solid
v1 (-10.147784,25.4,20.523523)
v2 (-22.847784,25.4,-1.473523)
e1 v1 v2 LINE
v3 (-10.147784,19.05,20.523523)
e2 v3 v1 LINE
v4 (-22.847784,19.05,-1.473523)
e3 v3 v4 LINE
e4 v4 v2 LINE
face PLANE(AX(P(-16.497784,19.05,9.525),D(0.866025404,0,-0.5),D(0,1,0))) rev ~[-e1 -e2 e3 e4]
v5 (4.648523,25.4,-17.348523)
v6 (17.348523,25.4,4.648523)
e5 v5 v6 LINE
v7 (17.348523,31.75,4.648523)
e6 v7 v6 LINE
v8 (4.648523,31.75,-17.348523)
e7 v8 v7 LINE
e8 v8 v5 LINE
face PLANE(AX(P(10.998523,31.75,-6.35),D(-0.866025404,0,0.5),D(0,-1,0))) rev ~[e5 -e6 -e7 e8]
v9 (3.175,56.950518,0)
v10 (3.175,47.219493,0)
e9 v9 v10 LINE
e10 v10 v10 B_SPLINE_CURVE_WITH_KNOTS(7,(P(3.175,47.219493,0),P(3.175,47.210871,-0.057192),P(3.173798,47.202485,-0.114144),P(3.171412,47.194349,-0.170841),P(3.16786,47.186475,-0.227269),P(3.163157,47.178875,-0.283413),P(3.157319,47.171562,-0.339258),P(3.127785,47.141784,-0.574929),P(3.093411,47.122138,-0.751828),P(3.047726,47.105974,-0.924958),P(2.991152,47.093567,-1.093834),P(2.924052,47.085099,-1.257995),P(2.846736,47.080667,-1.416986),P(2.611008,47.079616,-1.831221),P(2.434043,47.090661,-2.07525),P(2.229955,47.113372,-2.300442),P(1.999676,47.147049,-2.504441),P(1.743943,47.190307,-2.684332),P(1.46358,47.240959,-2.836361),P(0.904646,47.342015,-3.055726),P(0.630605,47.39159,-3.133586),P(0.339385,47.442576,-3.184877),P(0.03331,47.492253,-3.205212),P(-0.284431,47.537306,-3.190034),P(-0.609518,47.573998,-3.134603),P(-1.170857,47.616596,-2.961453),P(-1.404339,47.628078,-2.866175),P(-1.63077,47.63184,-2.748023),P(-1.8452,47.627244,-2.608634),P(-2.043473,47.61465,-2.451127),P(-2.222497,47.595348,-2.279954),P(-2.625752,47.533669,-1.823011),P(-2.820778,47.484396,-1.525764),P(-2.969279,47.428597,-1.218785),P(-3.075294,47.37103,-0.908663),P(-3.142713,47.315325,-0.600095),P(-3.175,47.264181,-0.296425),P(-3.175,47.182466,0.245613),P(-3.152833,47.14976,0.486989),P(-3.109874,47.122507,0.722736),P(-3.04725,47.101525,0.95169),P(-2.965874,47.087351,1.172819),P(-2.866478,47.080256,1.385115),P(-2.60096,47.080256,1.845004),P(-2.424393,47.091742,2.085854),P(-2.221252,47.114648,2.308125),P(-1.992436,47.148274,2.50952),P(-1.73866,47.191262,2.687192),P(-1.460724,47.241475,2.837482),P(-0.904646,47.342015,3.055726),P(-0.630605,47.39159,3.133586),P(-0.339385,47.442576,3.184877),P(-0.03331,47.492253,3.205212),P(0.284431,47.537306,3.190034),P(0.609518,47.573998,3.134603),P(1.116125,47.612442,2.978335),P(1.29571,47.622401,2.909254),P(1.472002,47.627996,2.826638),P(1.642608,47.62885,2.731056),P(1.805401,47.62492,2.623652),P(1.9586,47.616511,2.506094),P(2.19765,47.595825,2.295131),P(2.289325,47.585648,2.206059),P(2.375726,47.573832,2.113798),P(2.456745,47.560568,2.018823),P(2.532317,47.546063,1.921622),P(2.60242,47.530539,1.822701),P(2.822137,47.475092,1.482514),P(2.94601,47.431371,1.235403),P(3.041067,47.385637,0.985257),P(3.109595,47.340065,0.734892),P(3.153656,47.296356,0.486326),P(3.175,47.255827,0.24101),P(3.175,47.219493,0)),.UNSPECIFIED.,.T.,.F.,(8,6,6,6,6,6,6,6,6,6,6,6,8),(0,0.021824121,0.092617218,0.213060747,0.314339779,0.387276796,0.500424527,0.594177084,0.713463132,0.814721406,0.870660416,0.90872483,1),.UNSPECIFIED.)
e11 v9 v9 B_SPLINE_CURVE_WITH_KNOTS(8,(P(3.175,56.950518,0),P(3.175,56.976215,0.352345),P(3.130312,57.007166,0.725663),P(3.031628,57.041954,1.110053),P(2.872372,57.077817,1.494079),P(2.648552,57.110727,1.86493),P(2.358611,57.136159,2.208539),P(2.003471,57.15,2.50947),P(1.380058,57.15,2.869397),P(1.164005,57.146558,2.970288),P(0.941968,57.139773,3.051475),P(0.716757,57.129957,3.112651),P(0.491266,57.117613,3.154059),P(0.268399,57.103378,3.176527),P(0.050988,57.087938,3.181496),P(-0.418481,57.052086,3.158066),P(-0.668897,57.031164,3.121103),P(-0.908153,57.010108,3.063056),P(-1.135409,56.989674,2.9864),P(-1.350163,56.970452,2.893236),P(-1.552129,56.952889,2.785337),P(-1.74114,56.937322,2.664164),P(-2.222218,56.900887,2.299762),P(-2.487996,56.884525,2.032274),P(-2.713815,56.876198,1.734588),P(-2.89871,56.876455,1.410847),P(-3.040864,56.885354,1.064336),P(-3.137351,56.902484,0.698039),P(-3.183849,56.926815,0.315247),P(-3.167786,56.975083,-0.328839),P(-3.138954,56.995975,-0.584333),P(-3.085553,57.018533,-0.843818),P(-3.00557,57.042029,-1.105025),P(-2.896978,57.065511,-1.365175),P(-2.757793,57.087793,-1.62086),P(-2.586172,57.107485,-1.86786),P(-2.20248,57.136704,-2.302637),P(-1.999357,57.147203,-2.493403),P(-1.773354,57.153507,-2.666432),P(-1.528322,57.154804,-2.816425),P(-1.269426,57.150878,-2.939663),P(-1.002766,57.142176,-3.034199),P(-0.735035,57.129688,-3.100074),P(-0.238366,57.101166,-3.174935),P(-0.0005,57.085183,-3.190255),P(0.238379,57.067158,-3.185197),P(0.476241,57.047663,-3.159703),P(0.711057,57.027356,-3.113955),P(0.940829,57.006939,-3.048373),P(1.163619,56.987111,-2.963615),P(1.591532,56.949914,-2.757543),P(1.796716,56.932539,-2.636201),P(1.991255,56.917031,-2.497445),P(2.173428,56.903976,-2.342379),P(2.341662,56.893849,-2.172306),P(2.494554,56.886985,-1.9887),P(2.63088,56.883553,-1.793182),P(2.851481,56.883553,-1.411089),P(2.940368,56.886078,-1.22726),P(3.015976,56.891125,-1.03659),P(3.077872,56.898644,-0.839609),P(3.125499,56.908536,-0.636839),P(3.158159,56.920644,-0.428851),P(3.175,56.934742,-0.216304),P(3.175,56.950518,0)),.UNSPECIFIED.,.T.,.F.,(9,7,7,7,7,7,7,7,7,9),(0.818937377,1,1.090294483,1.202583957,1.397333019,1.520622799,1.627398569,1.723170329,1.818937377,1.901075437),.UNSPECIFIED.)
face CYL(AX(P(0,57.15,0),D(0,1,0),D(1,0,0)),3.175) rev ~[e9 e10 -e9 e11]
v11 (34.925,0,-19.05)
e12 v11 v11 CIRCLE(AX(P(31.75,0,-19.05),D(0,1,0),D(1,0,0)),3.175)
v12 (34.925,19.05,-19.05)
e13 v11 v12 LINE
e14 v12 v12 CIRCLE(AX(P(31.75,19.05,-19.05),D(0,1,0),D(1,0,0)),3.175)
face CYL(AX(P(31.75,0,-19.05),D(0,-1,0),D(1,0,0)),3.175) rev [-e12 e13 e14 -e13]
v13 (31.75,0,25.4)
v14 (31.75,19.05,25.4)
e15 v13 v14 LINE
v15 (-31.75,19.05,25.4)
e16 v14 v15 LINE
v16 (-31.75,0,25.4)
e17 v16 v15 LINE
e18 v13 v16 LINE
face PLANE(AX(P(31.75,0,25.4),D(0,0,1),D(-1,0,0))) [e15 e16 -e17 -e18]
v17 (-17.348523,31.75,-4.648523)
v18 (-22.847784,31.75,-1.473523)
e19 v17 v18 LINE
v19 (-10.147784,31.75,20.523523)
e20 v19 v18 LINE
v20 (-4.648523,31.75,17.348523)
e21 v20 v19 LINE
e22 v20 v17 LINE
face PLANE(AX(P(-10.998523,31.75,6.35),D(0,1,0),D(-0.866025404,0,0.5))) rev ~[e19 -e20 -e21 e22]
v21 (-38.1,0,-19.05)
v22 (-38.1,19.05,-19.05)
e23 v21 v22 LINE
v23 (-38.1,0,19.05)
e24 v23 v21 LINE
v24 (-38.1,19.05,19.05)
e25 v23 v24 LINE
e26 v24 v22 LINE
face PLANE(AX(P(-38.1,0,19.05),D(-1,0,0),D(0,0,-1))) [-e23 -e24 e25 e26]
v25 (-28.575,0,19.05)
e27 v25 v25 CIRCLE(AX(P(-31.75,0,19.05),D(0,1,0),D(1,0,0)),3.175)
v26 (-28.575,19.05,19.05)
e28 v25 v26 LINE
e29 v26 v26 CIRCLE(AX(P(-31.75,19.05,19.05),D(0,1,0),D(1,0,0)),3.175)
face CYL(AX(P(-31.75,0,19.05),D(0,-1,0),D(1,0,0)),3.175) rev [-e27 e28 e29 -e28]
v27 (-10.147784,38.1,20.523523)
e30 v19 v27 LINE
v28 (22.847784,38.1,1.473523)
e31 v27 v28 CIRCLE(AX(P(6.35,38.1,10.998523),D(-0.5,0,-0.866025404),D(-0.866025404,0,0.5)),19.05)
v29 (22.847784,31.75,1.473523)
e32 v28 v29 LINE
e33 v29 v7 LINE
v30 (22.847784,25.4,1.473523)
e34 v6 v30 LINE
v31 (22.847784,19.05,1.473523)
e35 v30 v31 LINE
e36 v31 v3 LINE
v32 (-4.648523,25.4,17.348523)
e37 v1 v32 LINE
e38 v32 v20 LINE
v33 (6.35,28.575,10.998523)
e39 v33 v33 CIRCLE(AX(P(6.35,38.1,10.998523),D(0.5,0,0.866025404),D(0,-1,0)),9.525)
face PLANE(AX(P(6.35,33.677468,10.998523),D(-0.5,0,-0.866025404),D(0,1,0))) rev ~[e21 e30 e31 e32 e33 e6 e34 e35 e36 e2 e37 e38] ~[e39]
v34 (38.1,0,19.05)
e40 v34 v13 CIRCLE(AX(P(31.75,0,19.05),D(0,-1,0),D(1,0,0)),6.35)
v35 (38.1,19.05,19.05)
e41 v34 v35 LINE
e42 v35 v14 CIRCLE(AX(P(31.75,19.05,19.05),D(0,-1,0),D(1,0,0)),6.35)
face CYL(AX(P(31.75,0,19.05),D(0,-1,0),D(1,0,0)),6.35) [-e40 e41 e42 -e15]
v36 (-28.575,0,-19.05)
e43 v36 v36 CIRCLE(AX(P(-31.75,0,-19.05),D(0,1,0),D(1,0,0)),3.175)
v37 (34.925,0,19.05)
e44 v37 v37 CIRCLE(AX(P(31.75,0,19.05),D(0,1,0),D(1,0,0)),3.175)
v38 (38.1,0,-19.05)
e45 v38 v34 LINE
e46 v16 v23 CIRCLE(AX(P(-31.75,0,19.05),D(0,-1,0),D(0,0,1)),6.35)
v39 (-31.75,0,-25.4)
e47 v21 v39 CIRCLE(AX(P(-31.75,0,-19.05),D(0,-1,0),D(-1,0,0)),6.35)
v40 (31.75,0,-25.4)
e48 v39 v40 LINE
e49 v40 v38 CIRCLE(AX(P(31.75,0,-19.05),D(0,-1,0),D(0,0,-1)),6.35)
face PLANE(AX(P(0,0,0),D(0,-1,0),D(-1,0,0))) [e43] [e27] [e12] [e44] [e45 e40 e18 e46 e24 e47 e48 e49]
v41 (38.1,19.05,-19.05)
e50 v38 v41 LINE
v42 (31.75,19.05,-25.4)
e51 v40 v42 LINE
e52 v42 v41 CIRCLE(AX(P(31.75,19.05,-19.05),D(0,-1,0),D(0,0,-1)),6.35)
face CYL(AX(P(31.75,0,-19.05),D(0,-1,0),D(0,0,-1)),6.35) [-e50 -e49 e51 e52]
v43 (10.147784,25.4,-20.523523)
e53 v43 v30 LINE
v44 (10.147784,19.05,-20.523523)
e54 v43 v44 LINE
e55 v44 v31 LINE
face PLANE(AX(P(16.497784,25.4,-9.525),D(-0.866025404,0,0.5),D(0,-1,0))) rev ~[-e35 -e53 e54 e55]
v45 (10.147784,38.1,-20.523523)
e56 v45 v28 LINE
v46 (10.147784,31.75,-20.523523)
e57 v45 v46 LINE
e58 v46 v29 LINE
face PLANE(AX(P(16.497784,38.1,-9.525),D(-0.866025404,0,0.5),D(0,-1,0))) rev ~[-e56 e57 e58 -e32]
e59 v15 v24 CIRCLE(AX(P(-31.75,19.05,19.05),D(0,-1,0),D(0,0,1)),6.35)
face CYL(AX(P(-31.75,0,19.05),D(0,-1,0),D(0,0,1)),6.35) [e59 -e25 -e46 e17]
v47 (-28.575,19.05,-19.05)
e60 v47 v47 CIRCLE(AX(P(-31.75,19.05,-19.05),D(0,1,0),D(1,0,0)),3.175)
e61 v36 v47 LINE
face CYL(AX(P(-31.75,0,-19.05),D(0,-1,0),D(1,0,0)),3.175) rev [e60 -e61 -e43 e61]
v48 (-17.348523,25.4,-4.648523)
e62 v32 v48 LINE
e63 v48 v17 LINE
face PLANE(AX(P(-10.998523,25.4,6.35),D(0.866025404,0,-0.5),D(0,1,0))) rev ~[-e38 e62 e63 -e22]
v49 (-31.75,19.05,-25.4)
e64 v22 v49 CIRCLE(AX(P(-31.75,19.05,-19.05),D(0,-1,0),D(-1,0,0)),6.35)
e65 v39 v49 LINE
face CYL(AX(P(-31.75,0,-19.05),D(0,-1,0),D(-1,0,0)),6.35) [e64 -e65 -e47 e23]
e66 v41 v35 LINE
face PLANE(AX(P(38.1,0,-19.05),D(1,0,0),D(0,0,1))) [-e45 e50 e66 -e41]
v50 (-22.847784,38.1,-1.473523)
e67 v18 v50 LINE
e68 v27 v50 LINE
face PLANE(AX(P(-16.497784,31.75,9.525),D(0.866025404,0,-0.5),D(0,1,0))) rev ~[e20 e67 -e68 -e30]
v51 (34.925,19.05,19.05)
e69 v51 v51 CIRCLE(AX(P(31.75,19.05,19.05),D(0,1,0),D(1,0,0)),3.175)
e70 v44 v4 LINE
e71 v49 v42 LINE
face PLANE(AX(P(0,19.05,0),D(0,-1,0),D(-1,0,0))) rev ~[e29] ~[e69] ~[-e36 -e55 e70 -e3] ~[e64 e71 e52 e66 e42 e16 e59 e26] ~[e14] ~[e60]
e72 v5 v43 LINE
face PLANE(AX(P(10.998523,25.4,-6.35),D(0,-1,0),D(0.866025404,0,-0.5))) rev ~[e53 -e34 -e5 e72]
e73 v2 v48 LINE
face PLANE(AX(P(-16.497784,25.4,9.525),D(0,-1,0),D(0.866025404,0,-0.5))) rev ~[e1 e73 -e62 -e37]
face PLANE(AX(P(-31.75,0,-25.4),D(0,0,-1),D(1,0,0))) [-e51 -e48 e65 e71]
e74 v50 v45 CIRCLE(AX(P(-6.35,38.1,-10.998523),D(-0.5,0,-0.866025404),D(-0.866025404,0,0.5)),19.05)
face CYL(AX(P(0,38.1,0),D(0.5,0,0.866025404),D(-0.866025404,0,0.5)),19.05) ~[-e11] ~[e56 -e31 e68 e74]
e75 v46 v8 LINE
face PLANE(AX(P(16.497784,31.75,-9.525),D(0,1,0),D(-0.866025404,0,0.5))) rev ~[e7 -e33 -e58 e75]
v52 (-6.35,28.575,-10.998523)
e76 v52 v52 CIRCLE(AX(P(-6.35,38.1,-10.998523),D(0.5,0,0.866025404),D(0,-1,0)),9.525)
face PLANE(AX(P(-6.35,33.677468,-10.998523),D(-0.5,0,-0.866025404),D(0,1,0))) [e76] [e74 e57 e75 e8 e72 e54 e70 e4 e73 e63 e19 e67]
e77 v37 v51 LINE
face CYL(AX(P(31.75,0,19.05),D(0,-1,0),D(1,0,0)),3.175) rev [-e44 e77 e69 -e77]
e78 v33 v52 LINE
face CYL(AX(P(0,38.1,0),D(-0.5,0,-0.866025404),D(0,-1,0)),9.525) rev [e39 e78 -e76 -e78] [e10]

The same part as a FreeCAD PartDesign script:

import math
import FreeCAD as App
import Part
import Sketcher

V = App.Vector
Q = App.Units.Quantity

doc = App.newDocument("Part")
body = doc.addObject("PartDesign::Body", "Body")

sketch1 = body.newObject("Sketcher::SketchObject", "Sketch")
sketch1.AttachmentSupport = (doc.getObject("XZ_Plane"), [""])
sketch1.MapMode = "FlatFace"
sketch1.addGeometry([
    Part.LineSegment(V(31.75, -25.4, 0), V(-31.75, -25.4, 0)),
    Part.ArcOfCircle(Part.Circle(V(-31.75, -19.05, 0), V(0, 0, 1), 6.35), math.radians(180), math.radians(270)),
    Part.LineSegment(V(-38.1, -19.05, 0), V(-38.1, 19.05, 0)),
    Part.ArcOfCircle(Part.Circle(V(-31.75, 19.05, 0), V(0, 0, 1), 6.35), math.radians(90), math.radians(180)),
    Part.LineSegment(V(-31.75, 25.4, 0), V(31.75, 25.4, 0)),
    Part.ArcOfCircle(Part.Circle(V(31.75, 19.05, 0), V(0, 0, 1), 6.35), math.radians(0), math.radians(90)),
    Part.LineSegment(V(38.1, 19.05, 0), V(38.1, -19.05, 0)),
    Part.ArcOfCircle(Part.Circle(V(31.75, -19.05, 0), V(0, 0, 1), 6.35), math.radians(-90), math.radians(0)),
    Part.Circle(V(31.75, 19.05, 0), V(0, 0, 1), 3.175),
    Part.Circle(V(-31.75, 19.05, 0), V(0, 0, 1), 3.175),
    Part.Circle(V(31.75, -19.05, 0), V(0, 0, 1), 3.175),
    Part.Circle(V(-31.75, -19.05, 0), V(0, 0, 1), 3.175),
], False)
sketch1.addConstraint([
    Sketcher.Constraint("Tangent", 0, 2, 1, 2),
    Sketcher.Constraint("Tangent", 1, 1, 2, 1),
    Sketcher.Constraint("Tangent", 2, 2, 3, 2),
    Sketcher.Constraint("Tangent", 3, 1, 4, 1),
    Sketcher.Constraint("Tangent", 4, 2, 5, 2),
    Sketcher.Constraint("Tangent", 5, 1, 6, 1),
    Sketcher.Constraint("Tangent", 6, 2, 7, 2),
    Sketcher.Constraint("Tangent", 7, 1, 0, 1),
    Sketcher.Constraint("Horizontal", 0),
    Sketcher.Constraint("Vertical", 2),
    Sketcher.Constraint("Horizontal", 4),
    Sketcher.Constraint("Vertical", 6),
    Sketcher.Constraint("Coincident", 8, 3, 5, 3),
    Sketcher.Constraint("Coincident", 9, 3, 3, 3),
    Sketcher.Constraint("Coincident", 10, 3, 7, 3),
    Sketcher.Constraint("Coincident", 11, 3, 1, 3),
    Sketcher.Constraint("Equal", 1, 3),
    Sketcher.Constraint("Equal", 3, 5),
    Sketcher.Constraint("Equal", 5, 7),
    Sketcher.Constraint("Equal", 8, 9),
    Sketcher.Constraint("Equal", 9, 10),
    Sketcher.Constraint("Equal", 10, 11),
    Sketcher.Constraint("Symmetric", 1, 3, 5, 3, -1, 1),
    Sketcher.Constraint("Diameter", 8, Q("0.25 in")),
    Sketcher.Constraint("Radius", 1, Q("0.25 in")),
    Sketcher.Constraint("DistanceX", 0, 2, 0, 1, Q("2.5 in")),
    Sketcher.Constraint("DistanceY", 2, 1, 2, 2, Q("1.5 in")),
])
pad1 = body.newObject("PartDesign::Pad", "Pad")
pad1.Profile = sketch1
pad1.Length = Q("0.75 in")
pad1.Reversed = True

sketch2 = body.newObject("Sketcher::SketchObject", "Sketch001")
sketch2.Placement = App.Placement(V(0, 0, 0), App.Rotation(V(0, -1, 0), V(0.866025404, 0, -0.5), V(0.5, 0, 0.866025404), "ZXY"))
sketch2.addGeometry([
    Part.LineSegment(V(-19.05, -19.05, 0), V(-19.05, 19.05, 0)),
    Part.LineSegment(V(-19.05, 19.05, 0), V(-25.4, 19.05, 0)),
    Part.LineSegment(V(-25.4, 19.05, 0), V(-25.4, 12.7, 0)),
    Part.LineSegment(V(-25.4, 12.7, 0), V(-31.75, 12.7, 0)),
    Part.LineSegment(V(-31.75, 12.7, 0), V(-31.75, 19.05, 0)),
    Part.LineSegment(V(-31.75, 19.05, 0), V(-38.1, 19.05, 0)),
    Part.ArcOfCircle(Part.Circle(V(-38.1, 0, 0), V(0, 0, 1), 19.05), math.radians(90), math.radians(270)),
    Part.LineSegment(V(-38.1, -19.05, 0), V(-31.75, -19.05, 0)),
    Part.LineSegment(V(-31.75, -19.05, 0), V(-31.75, -12.7, 0)),
    Part.LineSegment(V(-31.75, -12.7, 0), V(-25.4, -12.7, 0)),
    Part.LineSegment(V(-25.4, -12.7, 0), V(-25.4, -19.05, 0)),
    Part.LineSegment(V(-25.4, -19.05, 0), V(-19.05, -19.05, 0)),
    Part.Circle(V(-38.1, 0, 0), V(0, 0, 1), 9.525),
], False)
sketch2.addConstraint([
    Sketcher.Constraint("Coincident", 0, 2, 1, 1),
    Sketcher.Constraint("Coincident", 1, 2, 2, 1),
    Sketcher.Constraint("Coincident", 2, 2, 3, 1),
    Sketcher.Constraint("Coincident", 3, 2, 4, 1),
    Sketcher.Constraint("Coincident", 4, 2, 5, 1),
    Sketcher.Constraint("Tangent", 5, 2, 6, 1),
    Sketcher.Constraint("Tangent", 6, 2, 7, 1),
    Sketcher.Constraint("Coincident", 7, 2, 8, 1),
    Sketcher.Constraint("Coincident", 8, 2, 9, 1),
    Sketcher.Constraint("Coincident", 9, 2, 10, 1),
    Sketcher.Constraint("Coincident", 10, 2, 11, 1),
    Sketcher.Constraint("Coincident", 11, 2, 0, 1),
    Sketcher.Constraint("Vertical", 0),
    Sketcher.Constraint("Horizontal", 1),
    Sketcher.Constraint("Vertical", 2),
    Sketcher.Constraint("Horizontal", 3),
    Sketcher.Constraint("Vertical", 4),
    Sketcher.Constraint("Horizontal", 5),
    Sketcher.Constraint("Horizontal", 7),
    Sketcher.Constraint("Vertical", 8),
    Sketcher.Constraint("Horizontal", 9),
    Sketcher.Constraint("Vertical", 10),
    Sketcher.Constraint("Horizontal", 11),
    Sketcher.Constraint("Coincident", 12, 3, 6, 3),
    Sketcher.Constraint("Symmetric", 4, 2, 7, 2, -1),
    Sketcher.Constraint("Symmetric", 2, 2, 9, 2, -1),
    Sketcher.Constraint("Horizontal", 1, 2, 4, 2),
    Sketcher.Constraint("Horizontal", 7, 2, 10, 2),
    Sketcher.Constraint("Equal", 1, 3),
    Sketcher.Constraint("Equal", 3, 5),
    Sketcher.Constraint("Equal", 11, 2),
    Sketcher.Constraint("Diameter", 12, Q("0.75 in")),
    Sketcher.Constraint("Radius", 6, Q("0.75 in")),
    Sketcher.Constraint("DistanceX", 1, 2, -1, 1, Q("1 in")),
    Sketcher.Constraint("DistanceY", 8, 2, 3, 2, Q("1 in")),
])
pad2 = body.newObject("PartDesign::Pad", "Pad001")
pad2.Profile = sketch2
pad2.Length = Q("1 in")
pad2.Midplane = True

sketch3 = body.newObject("Sketcher::SketchObject", "Sketch002")
sketch3.AttachmentSupport = (doc.getObject("XZ_Plane"), [""])
sketch3.MapMode = "FlatFace"
sketch3.AttachmentOffset = App.Placement(V(0, 0, -2.25 * 25.4), App.Rotation())
sketch3.addGeometry(Part.Circle(V(0, 0, 0), V(0, 0, 1), 3.175), False)
sketch3.addConstraint([
    Sketcher.Constraint("Coincident", 0, 3, -1, 1),
    Sketcher.Constraint("Diameter", 0, Q("0.25 in")),
])
pocket1 = body.newObject("PartDesign::Pocket", "Pocket")
pocket1.Profile = sketch3
pocket1.Type = "UpToFirst"
pocket1.Reversed = True

doc.recompute()
